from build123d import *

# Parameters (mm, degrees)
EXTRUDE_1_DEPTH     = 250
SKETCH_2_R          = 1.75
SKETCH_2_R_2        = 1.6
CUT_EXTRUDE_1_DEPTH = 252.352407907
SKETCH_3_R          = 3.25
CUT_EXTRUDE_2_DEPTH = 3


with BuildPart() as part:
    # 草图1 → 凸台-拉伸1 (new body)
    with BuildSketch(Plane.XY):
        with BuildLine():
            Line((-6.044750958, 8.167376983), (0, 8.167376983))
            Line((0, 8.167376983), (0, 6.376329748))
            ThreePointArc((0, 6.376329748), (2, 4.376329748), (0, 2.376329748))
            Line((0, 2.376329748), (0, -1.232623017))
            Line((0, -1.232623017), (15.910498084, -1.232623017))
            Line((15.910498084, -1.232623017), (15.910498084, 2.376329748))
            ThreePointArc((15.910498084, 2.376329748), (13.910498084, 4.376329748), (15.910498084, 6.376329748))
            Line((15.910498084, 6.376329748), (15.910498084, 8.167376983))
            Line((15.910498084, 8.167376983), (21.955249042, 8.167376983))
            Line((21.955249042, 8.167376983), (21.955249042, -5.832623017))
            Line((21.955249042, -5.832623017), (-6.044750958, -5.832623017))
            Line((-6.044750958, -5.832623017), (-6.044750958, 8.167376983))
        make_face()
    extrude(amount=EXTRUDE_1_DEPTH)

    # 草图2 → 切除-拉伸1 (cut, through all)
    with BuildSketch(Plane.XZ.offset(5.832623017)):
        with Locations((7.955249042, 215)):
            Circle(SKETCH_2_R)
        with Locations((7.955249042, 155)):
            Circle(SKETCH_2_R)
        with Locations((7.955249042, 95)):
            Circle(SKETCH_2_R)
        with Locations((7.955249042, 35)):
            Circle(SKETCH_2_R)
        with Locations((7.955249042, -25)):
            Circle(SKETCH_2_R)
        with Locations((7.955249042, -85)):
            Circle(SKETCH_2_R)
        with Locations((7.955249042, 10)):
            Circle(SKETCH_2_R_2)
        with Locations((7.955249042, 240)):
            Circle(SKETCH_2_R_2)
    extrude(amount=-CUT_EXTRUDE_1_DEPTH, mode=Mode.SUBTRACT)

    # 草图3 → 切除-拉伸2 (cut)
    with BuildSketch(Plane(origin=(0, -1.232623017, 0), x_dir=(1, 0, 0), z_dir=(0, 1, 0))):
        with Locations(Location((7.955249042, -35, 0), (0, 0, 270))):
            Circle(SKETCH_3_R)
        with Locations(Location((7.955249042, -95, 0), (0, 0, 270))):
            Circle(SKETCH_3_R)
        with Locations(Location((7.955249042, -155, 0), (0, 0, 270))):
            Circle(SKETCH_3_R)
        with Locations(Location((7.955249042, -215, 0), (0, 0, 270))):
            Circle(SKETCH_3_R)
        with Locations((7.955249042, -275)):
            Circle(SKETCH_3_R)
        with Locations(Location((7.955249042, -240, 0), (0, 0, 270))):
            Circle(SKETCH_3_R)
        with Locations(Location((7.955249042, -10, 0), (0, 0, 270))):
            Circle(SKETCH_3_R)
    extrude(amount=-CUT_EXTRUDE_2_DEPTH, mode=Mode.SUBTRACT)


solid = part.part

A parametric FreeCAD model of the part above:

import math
import FreeCAD as App
import Part
import Sketcher

V = App.Vector

doc = App.newDocument("Part")
params = doc.addObject("Spreadsheet::Sheet", "Params")
for row, (alias, value) in enumerate([
    ("sketch1_radius", "2 mm"),
    ("sketch1_width", "28 mm"),
    ("sketch1_height", "14 mm"),
    ("pad1_length", "250 mm"),
    ("sketch2_diameter", "3.5 mm"),
    ("sketch2_diameter2", "3.2 mm"),
    ("sketch3_diameter", "6.5 mm"),
    ("pocket2_length", "3 mm"),
], start=1):
    params.set(f"A{row}", alias)
    params.set(f"B{row}", "=" + value)
    params.setAlias(f"B{row}", alias)

body = doc.addObject("PartDesign::Body", "Body")

sketch1 = body.newObject("Sketcher::SketchObject", "Sketch")
sketch1.AttachmentSupport = (doc.getObject("XY_Plane"), [""])
sketch1.MapMode = "FlatFace"
sketch1.addGeometry([
    Part.LineSegment(V(0, 8.2, 0), V(-6, 8.2, 0)),
    Part.LineSegment(V(-6, 8.2, 0), V(-6, -5.8, 0)),
    Part.LineSegment(V(-6, -5.8, 0), V(22, -5.8, 0)),
    Part.LineSegment(V(22, -5.8, 0), V(22, 8.2, 0)),
    Part.LineSegment(V(22, 8.2, 0), V(15.9, 8.2, 0)),
    Part.LineSegment(V(15.9, 8.2, 0), V(15.9, 6.4, 0)),
    Part.ArcOfCircle(Part.Circle(V(15.9, 4.4, 0), V(0, 0, 1), 2), math.radians(90), math.radians(270)),
    Part.LineSegment(V(15.9, 2.4, 0), V(15.9, -1.2, 0)),
    Part.LineSegment(V(15.9, -1.2, 0), V(0, -1.2, 0)),
    Part.LineSegment(V(0, -1.2, 0), V(0, 2.4, 0)),
    Part.ArcOfCircle(Part.Circle(V(0, 4.4, 0), V(0, 0, 1), 2), math.radians(-90), math.radians(90)),
    Part.LineSegment(V(0, 6.4, 0), V(0, 8.2, 0)),
], False)
sketch1.addConstraint([
    Sketcher.Constraint("Coincident", 0, 2, 1, 1),
    Sketcher.Constraint("Coincident", 1, 2, 2, 1),
    Sketcher.Constraint("Coincident", 2, 2, 3, 1),
    Sketcher.Constraint("Coincident", 3, 2, 4, 1),
    Sketcher.Constraint("Coincident", 4, 2, 5, 1),
    Sketcher.Constraint("Coincident", 5, 2, 6, 1),
    Sketcher.Constraint("Coincident", 6, 2, 7, 1),
    Sketcher.Constraint("Coincident", 7, 2, 8, 1),
    Sketcher.Constraint("Coincident", 8, 2, 9, 1),
    Sketcher.Constraint("Coincident", 9, 2, 10, 1),
    Sketcher.Constraint("Coincident", 10, 2, 11, 1),
    Sketcher.Constraint("Coincident", 11, 2, 0, 1),
    Sketcher.Constraint("Horizontal", 0),
    Sketcher.Constraint("Vertical", 1),
    Sketcher.Constraint("Horizontal", 2),
    Sketcher.Constraint("Vertical", 3),
    Sketcher.Constraint("Horizontal", 4),
    Sketcher.Constraint("Vertical", 5),
    Sketcher.Constraint("Vertical", 7),
    Sketcher.Constraint("Horizontal", 8),
    Sketcher.Constraint("Vertical", 9),
    Sketcher.Constraint("Vertical", 11),
    Sketcher.Constraint("Equal", 6, 10),
    Sketcher.Constraint("PointOnObject", 10, 3, -2),
    Sketcher.Constraint("PointOnObject", 8, 2, -2),
    Sketcher.Constraint("PointOnObject", 10, 2, -2),
    Sketcher.Constraint("Horizontal", 6, 3, 10, 3),
    Sketcher.Constraint("Horizontal", 0, 2, 3, 2),
    Sketcher.Constraint("Vertical", 6, 3, 4, 2),
    Sketcher.Constraint("Vertical", 5, 2, 6, 2),
    Sketcher.Constraint("Equal", 0, 4),
    Sketcher.Constraint("Radius", 6, 2.0),
    Sketcher.Constraint("DistanceX", 2, 1, 2, 2, 28.0),
    Sketcher.Constraint("DistanceY", 1, 2, 1, 1, 14.0),
    Sketcher.Constraint("DistanceY", 2, 2, 7, 2, 4.6),
    Sketcher.Constraint("DistanceX", 8, 2, 8, 1, 15.910498),
    Sketcher.Constraint("DistanceY", 5, 2, 5, 1, 1.791047),
    Sketcher.Constraint("DistanceY", -1, 1, 6, 3, 4.37633),
])
sketch1.setExpression("Constraints[31]", "Params.sketch1_radius")
sketch1.setExpression("Constraints[32]", "Params.sketch1_width")
sketch1.setExpression("Constraints[33]", "Params.sketch1_height")
pad1 = body.newObject("PartDesign::Pad", "Pad")
pad1.Profile = sketch1
pad1.setExpression("Length", "Params.pad1_length")

sketch2 = body.newObject("Sketcher::SketchObject", "Sketch001")
sketch2.AttachmentSupport = (doc.getObject("XZ_Plane"), [""])
sketch2.MapMode = "FlatFace"
sketch2.AttachmentOffset = App.Placement(V(0, 0, 5.832623), App.Rotation())
sketch2.addGeometry([
    Part.Circle(V(8, 215, 0), V(0, 0, 1), 1.8),
    Part.Circle(V(8, 155, 0), V(0, 0, 1), 1.8),
    Part.Circle(V(8, 95, 0), V(0, 0, 1), 1.8),
    Part.Circle(V(8, 35, 0), V(0, 0, 1), 1.8),
    Part.Circle(V(8, -25, 0), V(0, 0, 1), 1.8),
    Part.Circle(V(8, -85, 0), V(0, 0, 1), 1.8),
    Part.Circle(V(8, 10, 0), V(0, 0, 1), 1.6),
    Part.Circle(V(8, 240, 0), V(0, 0, 1), 1.6),
], False)
sketch2.addConstraint([
    Sketcher.Constraint("Equal", 0, 1),
    Sketcher.Constraint("Equal", 1, 2),
    Sketcher.Constraint("Equal", 2, 3),
    Sketcher.Constraint("Equal", 3, 4),
    Sketcher.Constraint("Equal", 4, 5),
    Sketcher.Constraint("Equal", 6, 7),
    Sketcher.Constraint("Vertical", 0, 3, 1, 3),
    Sketcher.Constraint("Vertical", 1, 3, 2, 3),
    Sketcher.Constraint("Vertical", 2, 3, 3, 3),
    Sketcher.Constraint("Vertical", 3, 3, 4, 3),
    Sketcher.Constraint("Vertical", 4, 3, 5, 3),
    Sketcher.Constraint("Vertical", 5, 3, 6, 3),
    Sketcher.Constraint("Vertical", 6, 3, 7, 3),
    Sketcher.Constraint("Diameter", 0, 3.5),
    Sketcher.Constraint("Diameter", 6, 3.2),
    Sketcher.Constraint("DistanceY", -1, 1, 0, 3, 215.0),
    Sketcher.Constraint("DistanceY", -1, 1, 1, 3, 155.0),
    Sketcher.Constraint("DistanceY", -1, 1, 2, 3, 95.0),
    Sketcher.Constraint("DistanceY", -1, 1, 3, 3, 35.0),
    Sketcher.Constraint("DistanceY", 4, 3, -1, 1, 25.0),
    Sketcher.Constraint("DistanceY", 5, 3, -1, 1, 85.0),
    Sketcher.Constraint("DistanceY", -1, 1, 6, 3, 10.0),
    Sketcher.Constraint("DistanceY", -1, 1, 7, 3, 240.0),
    Sketcher.Constraint("DistanceX", -1, 1, 0, 3, 7.955249),
])
sketch2.setExpression("Constraints[13]", "Params.sketch2_diameter")
sketch2.setExpression("Constraints[14]", "Params.sketch2_diameter2")
pocket1 = body.newObject("PartDesign::Pocket", "Pocket")
pocket1.Profile = sketch2
pocket1.Type = "ThroughAll"

sketch3 = body.newObject("Sketcher::SketchObject", "Sketch002")
sketch3.AttachmentSupport = (doc.getObject("XZ_Plane"), [""])
sketch3.MapMode = "FlatFace"
sketch3.AttachmentOffset = App.Placement(V(0, 0, 1.232623), App.Rotation())
sketch3.addGeometry([
    Part.Circle(V(8, 35, 0), V(0, 0, 1), 3.2),
    Part.Circle(V(8, 95, 0), V(0, 0, 1), 3.2),
    Part.Circle(V(8, 155, 0), V(0, 0, 1), 3.2),
    Part.Circle(V(8, 215, 0), V(0, 0, 1), 3.2),
    Part.Circle(V(8, 275, 0), V(0, 0, 1), 3.2),
    Part.Circle(V(8, 240, 0), V(0, 0, 1), 3.2),
    Part.Circle(V(8, 10, 0), V(0, 0, 1), 3.2),
], False)
sketch3.addConstraint([
    Sketcher.Constraint("Equal", 0, 1),
    Sketcher.Constraint("Equal", 1, 2),
    Sketcher.Constraint("Equal", 2, 3),
    Sketcher.Constraint("Equal", 3, 4),
    Sketcher.Constraint("Equal", 4, 5),
    Sketcher.Constraint("Equal", 5, 6),
    Sketcher.Constraint("Vertical", 0, 3, 1, 3),
    Sketcher.Constraint("Vertical", 1, 3, 2, 3),
    Sketcher.Constraint("Vertical", 2, 3, 3, 3),
    Sketcher.Constraint("Vertical", 3, 3, 4, 3),
    Sketcher.Constraint("Vertical", 4, 3, 5, 3),
    Sketcher.Constraint("Vertical", 5, 3, 6, 3),
    Sketcher.Constraint("Diameter", 0, 6.5),
    Sketcher.Constraint("DistanceY", -1, 1, 0, 3, 35.0),
    Sketcher.Constraint("DistanceY", -1, 1, 1, 3, 95.0),
    Sketcher.Constraint("DistanceY", -1, 1, 2, 3, 155.0),
    Sketcher.Constraint("DistanceY", -1, 1, 3, 3, 215.0),
    Sketcher.Constraint("DistanceY", -1, 1, 4, 3, 275.0),
    Sketcher.Constraint("DistanceY", -1, 1, 5, 3, 240.0),
    Sketcher.Constraint("DistanceY", -1, 1, 6, 3, 10.0),
    Sketcher.Constraint("DistanceX", -1, 1, 0, 3, 7.955249),
])
sketch3.setExpression("Constraints[12]", "Params.sketch3_diameter")
pocket2 = body.newObject("PartDesign::Pocket", "Pocket001")
pocket2.Profile = sketch3
pocket2.setExpression("Length", "Params.pocket2_length")
pocket2.Reversed = True

doc.recompute()
